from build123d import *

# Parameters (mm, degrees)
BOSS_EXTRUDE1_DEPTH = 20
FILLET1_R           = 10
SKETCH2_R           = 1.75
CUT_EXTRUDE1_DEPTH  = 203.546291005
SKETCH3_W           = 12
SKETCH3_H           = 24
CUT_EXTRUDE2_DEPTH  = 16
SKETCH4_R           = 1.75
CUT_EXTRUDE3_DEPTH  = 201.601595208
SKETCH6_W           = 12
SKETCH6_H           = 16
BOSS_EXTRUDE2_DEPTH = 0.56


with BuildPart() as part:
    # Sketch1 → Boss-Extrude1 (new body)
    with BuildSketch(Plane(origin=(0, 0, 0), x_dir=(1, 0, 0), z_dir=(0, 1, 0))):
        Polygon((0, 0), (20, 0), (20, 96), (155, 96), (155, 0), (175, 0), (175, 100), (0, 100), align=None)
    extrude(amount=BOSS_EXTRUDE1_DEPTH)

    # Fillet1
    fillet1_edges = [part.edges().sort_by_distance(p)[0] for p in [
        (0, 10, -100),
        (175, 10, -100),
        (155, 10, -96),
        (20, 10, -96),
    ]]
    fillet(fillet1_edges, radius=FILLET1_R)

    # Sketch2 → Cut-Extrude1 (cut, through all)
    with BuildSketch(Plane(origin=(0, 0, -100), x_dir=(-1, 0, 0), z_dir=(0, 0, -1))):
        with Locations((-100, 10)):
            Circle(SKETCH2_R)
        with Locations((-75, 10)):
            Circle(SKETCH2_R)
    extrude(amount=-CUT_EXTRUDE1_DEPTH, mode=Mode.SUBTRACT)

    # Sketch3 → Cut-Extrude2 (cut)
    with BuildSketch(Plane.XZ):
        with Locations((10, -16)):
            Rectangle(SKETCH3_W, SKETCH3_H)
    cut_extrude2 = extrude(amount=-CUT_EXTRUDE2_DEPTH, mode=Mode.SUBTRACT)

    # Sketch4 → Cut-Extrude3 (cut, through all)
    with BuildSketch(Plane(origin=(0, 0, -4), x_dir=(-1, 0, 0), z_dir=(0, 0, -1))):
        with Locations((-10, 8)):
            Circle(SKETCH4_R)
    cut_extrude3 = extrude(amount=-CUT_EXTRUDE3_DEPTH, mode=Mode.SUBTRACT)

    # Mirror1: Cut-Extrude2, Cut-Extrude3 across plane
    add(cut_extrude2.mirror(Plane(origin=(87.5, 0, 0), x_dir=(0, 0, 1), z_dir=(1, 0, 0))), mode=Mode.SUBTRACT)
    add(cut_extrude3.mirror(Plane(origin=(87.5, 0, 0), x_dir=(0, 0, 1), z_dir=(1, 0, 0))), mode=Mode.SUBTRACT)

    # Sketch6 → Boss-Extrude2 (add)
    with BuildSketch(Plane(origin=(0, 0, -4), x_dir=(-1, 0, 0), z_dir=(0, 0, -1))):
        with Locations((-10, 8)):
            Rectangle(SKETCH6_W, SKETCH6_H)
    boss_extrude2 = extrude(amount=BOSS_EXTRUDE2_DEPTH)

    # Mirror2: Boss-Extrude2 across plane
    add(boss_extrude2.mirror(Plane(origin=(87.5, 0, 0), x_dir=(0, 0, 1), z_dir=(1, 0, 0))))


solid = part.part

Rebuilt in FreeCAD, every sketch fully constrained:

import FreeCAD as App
import Part
import Sketcher
from FreeCAD import Vector
Q = App.Units.Quantity


def edges_at(feature, points):
    """Names of the edges that pass closest to the given points."""
    edges = feature.Shape.Edges
    near = lambda p: min(range(len(edges)), key=lambda i: edges[i].distToShape(Part.Vertex(*p))[0])
    return sorted({f"Edge{near(p) + 1}" for p in points})

doc = App.newDocument("Part")
params = doc.addObject("Spreadsheet::Sheet", "Params")
for row, (alias, value) in enumerate([
    ("sketch1_width", "20 mm"),
    ("sketch1_width2", "135 mm"),
    ("sketch1_height", "96 mm"),
    ("sketch1_height2", "100 mm"),
    ("pad1_length", "20 mm"),
    ("fillet_radius", "10 mm"),
    ("sketch2_diameter", "3.5 mm"),
    ("sketch3_width", "12 mm"),
    ("sketch3_height", "24 mm"),
    ("pocket2_length", "16 mm"),
    ("sketch4_diameter", "3.5 mm"),
    ("sketch5_width", "12 mm"),
    ("sketch5_height", "16 mm"),
    ("pad2_length", "0.56 mm"),
], start=1):
    params.set(f"A{row}", alias)
    params.set(f"B{row}", "=" + value)
    params.setAlias(f"B{row}", alias)

body = doc.addObject("PartDesign::Body", "Body")

sketch1 = doc.addObject("Sketcher::SketchObject", "Sketch")
body.addObject(sketch1)
sketch1.AttachmentSupport = (doc.XZ_Plane, [""])
sketch1.MapMode = "FlatFace"
sketch1.addGeometry([
    Part.LineSegment(Vector(0, 0, 0), Vector(20, 0, 0)),
    Part.LineSegment(Vector(20, 0, 0), Vector(20, -96, 0)),
    Part.LineSegment(Vector(20, -96, 0), Vector(155, -96, 0)),
    Part.LineSegment(Vector(155, -96, 0), Vector(155, 0, 0)),
    Part.LineSegment(Vector(155, 0, 0), Vector(175, 0, 0)),
    Part.LineSegment(Vector(175, 0, 0), Vector(175, -100, 0)),
    Part.LineSegment(Vector(175, -100, 0), Vector(0, -100, 0)),
    Part.LineSegment(Vector(0, -100, 0), Vector(0, 0, 0)),
], False)
sketch1.addConstraint([
    Sketcher.Constraint("Coincident", 0, 2, 1, 1),
    Sketcher.Constraint("Coincident", 1, 2, 2, 1),
    Sketcher.Constraint("Coincident", 2, 2, 3, 1),
    Sketcher.Constraint("Coincident", 3, 2, 4, 1),
    Sketcher.Constraint("Coincident", 4, 2, 5, 1),
    Sketcher.Constraint("Coincident", 5, 2, 6, 1),
    Sketcher.Constraint("Coincident", 6, 2, 7, 1),
    Sketcher.Constraint("Coincident", 7, 2, 0, 1),
    Sketcher.Constraint("Horizontal", 0),
    Sketcher.Constraint("Vertical", 1),
    Sketcher.Constraint("Horizontal", 2),
    Sketcher.Constraint("Vertical", 3),
    Sketcher.Constraint("Horizontal", 4),
    Sketcher.Constraint("Vertical", 5),
    Sketcher.Constraint("Horizontal", 6),
    Sketcher.Constraint("Vertical", 7),
    Sketcher.Constraint("Coincident", 7, 2, -1, 1),
    Sketcher.Constraint("PointOnObject", 3, 2, -1),
    Sketcher.Constraint("Equal", 0, 4),
    Sketcher.Constraint("DistanceX", 0, 1, 0, 2, Q("20 mm")),
    Sketcher.Constraint("DistanceX", 2, 1, 2, 2, Q("135 mm")),
    Sketcher.Constraint("DistanceY", 1, 2, 1, 1, Q("96 mm")),
    Sketcher.Constraint("DistanceY", 5, 2, 5, 1, Q("100 mm")),
])
sketch1.setExpression("Constraints[19]", "Params.sketch1_width")
sketch1.setExpression("Constraints[20]", "Params.sketch1_width2")
sketch1.setExpression("Constraints[21]", "Params.sketch1_height")
sketch1.setExpression("Constraints[22]", "Params.sketch1_height2")
pad1 = doc.addObject("PartDesign::Pad", "Pad")
body.addObject(pad1)
pad1.Profile = sketch1
pad1.setExpression("Length", "Params.pad1_length")
pad1.Reversed = True
doc.recompute()

fillet = doc.addObject("PartDesign::Fillet", "Fillet")
body.addObject(fillet)
fillet.Base = (pad1, edges_at(pad1, [
    (0, 10, -100),
    (175, 10, -100),
    (155, 10, -96),
    (20, 10, -96),
]))
fillet.setExpression("Radius", "Params.fillet_radius")

sketch2 = doc.addObject("Sketcher::SketchObject", "Sketch001")
body.addObject(sketch2)
sketch2.AttachmentSupport = (doc.XY_Plane, [""])
sketch2.MapMode = "FlatFace"
sketch2.AttachmentOffset = App.Placement(Vector(0, 0, -100), App.Rotation())
sketch2.addGeometry([
    Part.Circle(Vector(100, 10, 0), Vector(0, 0, 1), 1.75),
    Part.Circle(Vector(75, 10, 0), Vector(0, 0, 1), 1.75),
], False)
sketch2.addConstraint([
    Sketcher.Constraint("Equal", 0, 1),
    Sketcher.Constraint("Horizontal", 0, 3, 1, 3),
    Sketcher.Constraint("Diameter", 0, Q("3.5 mm")),
    Sketcher.Constraint("DistanceX", -1, 1, 0, 3, Q("100 mm")),
    Sketcher.Constraint("DistanceY", -1, 1, 0, 3, Q("10 mm")),
    Sketcher.Constraint("DistanceX", -1, 1, 1, 3, Q("75 mm")),
])
sketch2.setExpression("Constraints[2]", "Params.sketch2_diameter")
pocket1 = doc.addObject("PartDesign::Pocket", "Pocket")
body.addObject(pocket1)
pocket1.Profile = sketch2
pocket1.Type = "ThroughAll"
pocket1.Reversed = True

sketch3 = doc.addObject("Sketcher::SketchObject", "Sketch002")
body.addObject(sketch3)
sketch3.AttachmentSupport = (doc.XZ_Plane, [""])
sketch3.MapMode = "FlatFace"
sketch3.addGeometry([
    Part.LineSegment(Vector(4, -4, 0), Vector(4, -28, 0)),
    Part.LineSegment(Vector(4, -28, 0), Vector(16, -28, 0)),
    Part.LineSegment(Vector(16, -28, 0), Vector(16, -4, 0)),
    Part.LineSegment(Vector(16, -4, 0), Vector(4, -4, 0)),
], False)
sketch3.addConstraint([
    Sketcher.Constraint("Coincident", 0, 2, 1, 1),
    Sketcher.Constraint("Coincident", 1, 2, 2, 1),
    Sketcher.Constraint("Coincident", 2, 2, 3, 1),
    Sketcher.Constraint("Coincident", 3, 2, 0, 1),
    Sketcher.Constraint("Vertical", 0),
    Sketcher.Constraint("Horizontal", 1),
    Sketcher.Constraint("Vertical", 2),
    Sketcher.Constraint("Horizontal", 3),
    Sketcher.Constraint("DistanceX", 1, 1, 1, 2, Q("12 mm")),
    Sketcher.Constraint("DistanceY", 0, 2, 0, 1, Q("24 mm")),
    Sketcher.Constraint("DistanceX", -1, 1, 0, 2, Q("4 mm")),
    Sketcher.Constraint("DistanceY", 0, 2, -1, 1, Q("28 mm")),
])
sketch3.setExpression("Constraints[8]", "Params.sketch3_width")
sketch3.setExpression("Constraints[9]", "Params.sketch3_height")
pocket2 = doc.addObject("PartDesign::Pocket", "Pocket001")
body.addObject(pocket2)
pocket2.Profile = sketch3
pocket2.setExpression("Length", "Params.pocket2_length")

sketch4 = doc.addObject("Sketcher::SketchObject", "Sketch003")
body.addObject(sketch4)
sketch4.AttachmentSupport = (doc.XY_Plane, [""])
sketch4.MapMode = "FlatFace"
sketch4.AttachmentOffset = App.Placement(Vector(0, 0, -4), App.Rotation())
sketch4.addGeometry(Part.Circle(Vector(10, 8, 0), Vector(0, 0, 1), 1.75), False)
sketch4.addConstraint([
    Sketcher.Constraint("Diameter", 0, Q("3.5 mm")),
    Sketcher.Constraint("DistanceX", -1, 1, 0, 3, Q("10 mm")),
    Sketcher.Constraint("DistanceY", -1, 1, 0, 3, Q("8 mm")),
])
sketch4.setExpression("Constraints[0]", "Params.sketch4_diameter")
pocket3 = doc.addObject("PartDesign::Pocket", "Pocket002")
body.addObject(pocket3)
pocket3.Profile = sketch4
pocket3.Type = "ThroughAll"
pocket3.Reversed = True
doc.recompute()

datumplane = doc.addObject("PartDesign::Plane", "DatumPlane")
body.addObject(datumplane)
datumplane.AttachmentSupport = (doc.YZ_Plane, [""])
datumplane.MapMode = "FlatFace"
datumplane.AttachmentOffset = App.Placement(Vector(0, 0, 87.5), App.Rotation())
mirrored = doc.addObject("PartDesign::Mirrored", "Mirrored")
body.addObject(mirrored)
mirrored.Originals = [pocket2, pocket3]
mirrored.MirrorPlane = (datumplane, [""])
body.Tip = mirrored

sketch5 = doc.addObject("Sketcher::SketchObject", "Sketch004")
body.addObject(sketch5)
sketch5.AttachmentSupport = (doc.XY_Plane, [""])
sketch5.MapMode = "FlatFace"
sketch5.AttachmentOffset = App.Placement(Vector(0, 0, -4), App.Rotation())
sketch5.addGeometry([
    Part.LineSegment(Vector(16, 16, 0), Vector(16, 0, 0)),
    Part.LineSegment(Vector(16, 0, 0), Vector(4, 0, 0)),
    Part.LineSegment(Vector(4, 0, 0), Vector(4, 16, 0)),
    Part.LineSegment(Vector(4, 16, 0), Vector(16, 16, 0)),
], False)
sketch5.addConstraint([
    Sketcher.Constraint("Coincident", 0, 2, 1, 1),
    Sketcher.Constraint("Coincident", 1, 2, 2, 1),
    Sketcher.Constraint("Coincident", 2, 2, 3, 1),
    Sketcher.Constraint("Coincident", 3, 2, 0, 1),
    Sketcher.Constraint("Vertical", 0),
    Sketcher.Constraint("Horizontal", 1),
    Sketcher.Constraint("Vertical", 2),
    Sketcher.Constraint("Horizontal", 3),
    Sketcher.Constraint("PointOnObject", 0, 2, -1),
    Sketcher.Constraint("DistanceX", 1, 2, 1, 1, Q("12 mm")),
    Sketcher.Constraint("DistanceY", 0, 2, 0, 1, Q("16 mm")),
    Sketcher.Constraint("DistanceX", -1, 1, 0, 2, Q("16 mm")),
])
sketch5.setExpression("Constraints[9]", "Params.sketch5_width")
sketch5.setExpression("Constraints[10]", "Params.sketch5_height")
pad2 = doc.addObject("PartDesign::Pad", "Pad001")
body.addObject(pad2)
pad2.Profile = sketch5
pad2.setExpression("Length", "Params.pad2_length")
pad2.Reversed = True
doc.recompute()

datumplane2 = doc.addObject("PartDesign::Plane", "DatumPlane001")
body.addObject(datumplane2)
datumplane2.AttachmentSupport = (doc.YZ_Plane, [""])
datumplane2.MapMode = "FlatFace"
datumplane2.AttachmentOffset = App.Placement(Vector(0, 0, 87.5), App.Rotation())
mirrored2 = doc.addObject("PartDesign::Mirrored", "Mirrored001")
body.addObject(mirrored2)
mirrored2.Originals = [pad2]
mirrored2.MirrorPlane = (datumplane2, [""])
body.Tip = mirrored2

doc.recompute()
